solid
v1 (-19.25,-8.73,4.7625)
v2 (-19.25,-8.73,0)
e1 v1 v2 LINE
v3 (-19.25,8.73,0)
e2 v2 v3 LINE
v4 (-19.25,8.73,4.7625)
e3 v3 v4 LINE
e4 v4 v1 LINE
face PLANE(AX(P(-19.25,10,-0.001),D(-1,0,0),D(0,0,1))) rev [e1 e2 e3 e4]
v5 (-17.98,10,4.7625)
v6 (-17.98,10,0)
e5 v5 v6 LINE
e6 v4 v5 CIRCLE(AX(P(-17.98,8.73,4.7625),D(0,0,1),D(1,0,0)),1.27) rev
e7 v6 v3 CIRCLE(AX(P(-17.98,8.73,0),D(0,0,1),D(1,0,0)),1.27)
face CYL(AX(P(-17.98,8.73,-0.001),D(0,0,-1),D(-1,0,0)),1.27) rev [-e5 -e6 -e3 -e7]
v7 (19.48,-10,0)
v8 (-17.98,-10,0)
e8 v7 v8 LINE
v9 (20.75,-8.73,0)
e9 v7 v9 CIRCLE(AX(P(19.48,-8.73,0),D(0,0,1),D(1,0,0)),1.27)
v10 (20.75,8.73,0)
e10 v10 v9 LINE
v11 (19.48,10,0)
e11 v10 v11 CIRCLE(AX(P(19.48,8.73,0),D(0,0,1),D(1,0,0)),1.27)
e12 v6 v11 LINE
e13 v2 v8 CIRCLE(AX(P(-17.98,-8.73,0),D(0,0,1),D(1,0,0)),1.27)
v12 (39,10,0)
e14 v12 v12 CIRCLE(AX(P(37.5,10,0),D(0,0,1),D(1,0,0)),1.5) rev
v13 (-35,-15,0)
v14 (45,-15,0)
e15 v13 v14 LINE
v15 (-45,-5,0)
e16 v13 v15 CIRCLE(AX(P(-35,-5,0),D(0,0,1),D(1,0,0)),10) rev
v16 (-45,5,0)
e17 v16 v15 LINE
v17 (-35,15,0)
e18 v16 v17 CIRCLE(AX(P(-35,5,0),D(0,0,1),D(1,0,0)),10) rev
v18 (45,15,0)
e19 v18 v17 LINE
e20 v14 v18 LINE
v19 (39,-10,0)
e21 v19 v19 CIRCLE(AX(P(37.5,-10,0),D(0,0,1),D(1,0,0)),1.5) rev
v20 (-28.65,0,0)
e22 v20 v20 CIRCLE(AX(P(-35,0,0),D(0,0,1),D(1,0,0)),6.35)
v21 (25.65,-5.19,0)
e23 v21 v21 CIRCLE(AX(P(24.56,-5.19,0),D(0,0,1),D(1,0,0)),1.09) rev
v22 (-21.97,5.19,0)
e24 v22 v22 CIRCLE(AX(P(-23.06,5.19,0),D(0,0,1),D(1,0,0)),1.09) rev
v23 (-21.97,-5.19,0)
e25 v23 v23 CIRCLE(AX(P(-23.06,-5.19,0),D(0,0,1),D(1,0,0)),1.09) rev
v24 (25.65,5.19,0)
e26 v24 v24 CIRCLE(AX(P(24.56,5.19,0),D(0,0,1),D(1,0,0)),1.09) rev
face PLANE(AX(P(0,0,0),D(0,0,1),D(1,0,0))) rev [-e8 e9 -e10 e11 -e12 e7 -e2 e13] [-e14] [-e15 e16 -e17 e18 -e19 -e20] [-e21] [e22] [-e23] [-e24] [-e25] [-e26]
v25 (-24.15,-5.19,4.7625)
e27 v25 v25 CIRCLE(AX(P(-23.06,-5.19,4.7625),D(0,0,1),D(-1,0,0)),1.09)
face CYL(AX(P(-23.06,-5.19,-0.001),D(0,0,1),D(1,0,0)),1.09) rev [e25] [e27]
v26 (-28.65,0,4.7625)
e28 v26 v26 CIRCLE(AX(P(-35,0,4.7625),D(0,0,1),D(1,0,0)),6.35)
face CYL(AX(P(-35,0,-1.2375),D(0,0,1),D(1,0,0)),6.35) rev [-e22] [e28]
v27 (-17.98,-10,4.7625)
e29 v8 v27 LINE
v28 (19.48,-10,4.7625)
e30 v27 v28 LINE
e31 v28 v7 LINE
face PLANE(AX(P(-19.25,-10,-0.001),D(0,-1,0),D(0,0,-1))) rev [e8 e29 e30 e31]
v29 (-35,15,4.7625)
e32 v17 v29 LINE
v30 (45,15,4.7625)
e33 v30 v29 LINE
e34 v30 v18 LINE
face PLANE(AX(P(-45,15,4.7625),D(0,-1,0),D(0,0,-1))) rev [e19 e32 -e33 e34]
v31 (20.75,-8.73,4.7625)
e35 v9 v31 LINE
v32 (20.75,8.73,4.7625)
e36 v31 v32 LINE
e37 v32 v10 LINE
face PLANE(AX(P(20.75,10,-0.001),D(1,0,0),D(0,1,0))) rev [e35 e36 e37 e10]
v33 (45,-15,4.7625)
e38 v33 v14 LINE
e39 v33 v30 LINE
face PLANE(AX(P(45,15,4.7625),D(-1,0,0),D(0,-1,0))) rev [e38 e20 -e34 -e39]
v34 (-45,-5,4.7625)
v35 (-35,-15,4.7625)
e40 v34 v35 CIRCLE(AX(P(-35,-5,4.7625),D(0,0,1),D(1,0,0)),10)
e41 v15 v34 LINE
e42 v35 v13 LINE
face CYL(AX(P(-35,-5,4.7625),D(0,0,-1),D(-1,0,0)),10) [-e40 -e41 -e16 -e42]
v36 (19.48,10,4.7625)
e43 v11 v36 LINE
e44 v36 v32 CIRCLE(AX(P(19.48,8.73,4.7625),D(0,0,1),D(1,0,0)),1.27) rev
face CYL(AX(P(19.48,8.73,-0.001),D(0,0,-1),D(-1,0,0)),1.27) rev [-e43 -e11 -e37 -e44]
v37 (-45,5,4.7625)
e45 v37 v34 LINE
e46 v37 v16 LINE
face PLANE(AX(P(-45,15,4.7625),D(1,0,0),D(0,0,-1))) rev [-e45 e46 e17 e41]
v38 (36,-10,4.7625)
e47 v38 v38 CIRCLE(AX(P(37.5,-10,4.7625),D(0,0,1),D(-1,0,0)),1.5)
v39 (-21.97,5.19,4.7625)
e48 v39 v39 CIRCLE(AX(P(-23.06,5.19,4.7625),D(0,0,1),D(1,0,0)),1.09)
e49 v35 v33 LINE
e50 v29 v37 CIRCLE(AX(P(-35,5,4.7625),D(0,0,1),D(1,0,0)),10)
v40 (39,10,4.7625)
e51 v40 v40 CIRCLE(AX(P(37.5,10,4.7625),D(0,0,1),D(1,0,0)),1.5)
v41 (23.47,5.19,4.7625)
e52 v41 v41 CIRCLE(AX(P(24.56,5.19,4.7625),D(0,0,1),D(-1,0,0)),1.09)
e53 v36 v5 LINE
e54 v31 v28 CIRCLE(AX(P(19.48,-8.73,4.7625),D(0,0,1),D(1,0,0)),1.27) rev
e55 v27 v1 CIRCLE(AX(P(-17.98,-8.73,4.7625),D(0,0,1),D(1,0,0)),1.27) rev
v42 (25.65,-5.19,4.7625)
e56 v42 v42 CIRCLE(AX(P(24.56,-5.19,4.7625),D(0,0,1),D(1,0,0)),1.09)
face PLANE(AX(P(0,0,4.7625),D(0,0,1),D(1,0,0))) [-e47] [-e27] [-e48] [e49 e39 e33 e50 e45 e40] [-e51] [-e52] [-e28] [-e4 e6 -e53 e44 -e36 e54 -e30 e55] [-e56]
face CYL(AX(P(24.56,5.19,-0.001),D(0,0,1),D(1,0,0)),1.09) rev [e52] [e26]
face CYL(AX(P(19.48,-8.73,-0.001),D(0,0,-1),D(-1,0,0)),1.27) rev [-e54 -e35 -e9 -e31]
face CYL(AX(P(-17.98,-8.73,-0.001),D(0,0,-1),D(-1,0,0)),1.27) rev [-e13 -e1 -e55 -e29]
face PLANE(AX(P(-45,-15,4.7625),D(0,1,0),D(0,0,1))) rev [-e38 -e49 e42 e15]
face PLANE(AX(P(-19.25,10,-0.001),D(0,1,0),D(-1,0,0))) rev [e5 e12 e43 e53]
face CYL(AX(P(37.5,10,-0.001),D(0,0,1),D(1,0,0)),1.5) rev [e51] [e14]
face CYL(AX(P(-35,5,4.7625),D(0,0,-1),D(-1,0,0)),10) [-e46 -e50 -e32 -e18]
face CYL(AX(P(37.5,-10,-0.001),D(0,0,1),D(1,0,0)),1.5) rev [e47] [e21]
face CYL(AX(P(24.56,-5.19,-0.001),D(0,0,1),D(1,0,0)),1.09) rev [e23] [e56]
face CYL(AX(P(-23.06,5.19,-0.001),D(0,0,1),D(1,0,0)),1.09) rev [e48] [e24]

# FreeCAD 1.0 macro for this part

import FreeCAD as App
import Part
import Sketcher
from FreeCAD import Vector


def edges_at(feature, points):
    """Names of the edges that pass closest to the given points."""
    edges = feature.Shape.Edges
    near = lambda p: min(range(len(edges)), key=lambda i: edges[i].distToShape(Part.Vertex(*p))[0])
    return sorted({f"Edge{near(p) + 1}" for p in points})


def add_polygon(sketch, points):
    """Adds a closed chain of lines whose ends are joined by coincident constraints."""
    first, n = sketch.GeometryCount, len(points)
    for a, b in zip(points, points[1:] + points[:1]):
        sketch.addGeometry(Part.LineSegment(App.Vector(*a, 0), App.Vector(*b, 0)), False)
    for i in range(n):
        sketch.addConstraint(Sketcher.Constraint("Coincident", first + i, 2, first + (i + 1) % n, 1))

doc = App.newDocument("Part")
params = doc.addObject("Spreadsheet::Sheet", "Params")
for row, (alias, value) in enumerate([
    ("sketch1_width", "90 mm"),
    ("sketch1_height", "30 mm"),
    ("pad1_length", "4.7625 mm"),
    ("fillet_radius", "10 mm"),
    ("sketch2_diameter", "12.7 mm"),
    ("pocket1_length", "6 mm"),
    ("sketch3_width", "40 mm"),
    ("sketch3_height", "20 mm"),
    ("fillet2_radius", "1.27 mm"),
    ("sketch4_diameter", "2.18 mm"),
    ("sketch5_diameter", "2.18 mm"),
    ("sketch6_diameter", "2.18 mm"),
    ("sketch7_diameter", "2.18 mm"),
    ("sketch8_diameter", "3 mm"),
    ("sketch9_diameter", "3 mm"),
], start=1):
    params.set(f"A{row}", alias)
    params.set(f"B{row}", "=" + value)
    params.setAlias(f"B{row}", alias)

body = doc.addObject("PartDesign::Body", "Body")

# Sketch on XY plane
sketch1 = body.newObject("Sketcher::SketchObject", "Sketch")
sketch1.AttachmentSupport = (doc.getObject("XY_Plane"), [""])
sketch1.MapMode = "FlatFace"
add_polygon(sketch1, [(-45, 15), (-45, -15), (45, -15), (45, 15)])  # lines 0-3
sketch1.addConstraint([
    Sketcher.Constraint("Vertical", 0),
    Sketcher.Constraint("Horizontal", 1),
    Sketcher.Constraint("Vertical", 2),
    Sketcher.Constraint("Horizontal", 3),
    Sketcher.Constraint("Symmetric", 0, 2, 2, 2, -1, 1),
    Sketcher.Constraint("DistanceX", 1, 1, 1, 2, 90.0),
    Sketcher.Constraint("DistanceY", 0, 2, 0, 1, 30.0),
])
sketch1.setExpression("Constraints[9]", "Params.sketch1_width")
sketch1.setExpression("Constraints[10]", "Params.sketch1_height")
pad1 = body.newObject("PartDesign::Pad", "Pad")
pad1.Profile = sketch1
pad1.setExpression("Length", "Params.pad1_length")
doc.recompute()

fillet = body.newObject("PartDesign::Fillet", "Fillet")
fillet.Base = (pad1, edges_at(pad1, [(-45, -15, 2.381), (-45, 15, 2.381)]))
fillet.setExpression("Radius", "Params.fillet_radius")

# Sketch on XY plane
sketch2 = body.newObject("Sketcher::SketchObject", "Sketch001")
sketch2.AttachmentSupport = (doc.getObject("XY_Plane"), [""])
sketch2.MapMode = "FlatFace"
sketch2.AttachmentOffset = App.Placement(Vector(0, 0, 4.7625), App.Rotation())
sketch2.addGeometry(Part.Circle(Vector(-35, 0, 0), Vector(0, 0, 1), 6), False)
sketch2.addConstraint([
    Sketcher.Constraint("PointOnObject", 0, 3, -1),
    Sketcher.Constraint("Diameter", 0, 12.7),
    Sketcher.Constraint("DistanceX", 0, 3, -1, 1, 35.0),
])
sketch2.setExpression("Constraints[1]", "Params.sketch2_diameter")
pocket1 = body.newObject("PartDesign::Pocket", "Pocket")
pocket1.Profile = sketch2
pocket1.setExpression("Length", "Params.pocket1_length")

# Sketch on XY plane
sketch3 = body.newObject("Sketcher::SketchObject", "Sketch002")
sketch3.AttachmentSupport = (doc.getObject("XY_Plane"), [""])
sketch3.MapMode = "FlatFace"
sketch3.AttachmentOffset = App.Placement(Vector(0, 0, 4.7625), App.Rotation())
add_polygon(sketch3, [(-19, 10), (-19, -10), (21, -10), (21, 10)])  # lines 0-3
sketch3.addConstraint([
    Sketcher.Constraint("Vertical", 0),
    Sketcher.Constraint("Horizontal", 1),
    Sketcher.Constraint("Vertical", 2),
    Sketcher.Constraint("Horizontal", 3),
    Sketcher.Constraint("DistanceX", 1, 1, 1, 2, 40.0),
    Sketcher.Constraint("DistanceY", 0, 2, 0, 1, 20.0),
    Sketcher.Constraint("DistanceY", 0, 2, -1, 1, 10.0),
    Sketcher.Constraint("DistanceX", 0, 2, -1, 1, 19.25),
])
sketch3.setExpression("Constraints[8]", "Params.sketch3_width")
sketch3.setExpression("Constraints[9]", "Params.sketch3_height")
pocket2 = body.newObject("PartDesign::Pocket", "Pocket001")
pocket2.Profile = sketch3
pocket2.Type = "UpToFirst"
doc.recompute()

fillet2 = body.newObject("PartDesign::Fillet", "Fillet001")
fillet2.Base = (pocket2, edges_at(pocket2, [
    (-19.25, -10, 2.381),
    (-19.25, 10, 2.381),
    (20.75, 10, 2.381),
    (20.75, -10, 2.381),
]))
fillet2.setExpression("Radius", "Params.fillet2_radius")

# Sketch on XY plane
sketch4 = body.newObject("Sketcher::SketchObject", "Sketch003")
sketch4.AttachmentSupport = (doc.getObject("XY_Plane"), [""])
sketch4.MapMode = "FlatFace"
sketch4.AttachmentOffset = App.Placement(Vector(0, 0, 4.7625), App.Rotation())
sketch4.addGeometry(Part.Circle(Vector(-23.1, 5.2, 0), Vector(0, 0, 1), 1.1), False)
sketch4.addConstraint([
    Sketcher.Constraint("Diameter", 0, 2.18),
    Sketcher.Constraint("DistanceX", 0, 3, -1, 1, 23.06),
    Sketcher.Constraint("DistanceY", -1, 1, 0, 3, 5.19),
])
sketch4.setExpression("Constraints[0]", "Params.sketch4_diameter")
pocket3 = body.newObject("PartDesign::Pocket", "Pocket002")
pocket3.Profile = sketch4
pocket3.Type = "UpToFirst"

# Sketch on XY plane
sketch5 = body.newObject("Sketcher::SketchObject", "Sketch004")
sketch5.AttachmentSupport = (doc.getObject("XY_Plane"), [""])
sketch5.MapMode = "FlatFace"
sketch5.AttachmentOffset = App.Placement(Vector(0, 0, 4.7625), App.Rotation())
sketch5.addGeometry(Part.Circle(Vector(-23.1, -5.2, 0), Vector(0, 0, 1), 1.1), False)
sketch5.addConstraint([
    Sketcher.Constraint("Diameter", 0, 2.18),
    Sketcher.Constraint("DistanceX", 0, 3, -1, 1, 23.06),
    Sketcher.Constraint("DistanceY", 0, 3, -1, 1, 5.19),
])
sketch5.setExpression("Constraints[0]", "Params.sketch5_diameter")
pocket4 = body.newObject("PartDesign::Pocket", "Pocket003")
pocket4.Profile = sketch5
pocket4.Type = "UpToFirst"

# Sketch on XY plane
sketch6 = body.newObject("Sketcher::SketchObject", "Sketch005")
sketch6.AttachmentSupport = (doc.getObject("XY_Plane"), [""])
sketch6.MapMode = "FlatFace"
sketch6.AttachmentOffset = App.Placement(Vector(0, 0, 4.7625), App.Rotation())
sketch6.addGeometry(Part.Circle(Vector(24.6, -5.2, 0), Vector(0, 0, 1), 1.1), False)
sketch6.addConstraint([
    Sketcher.Constraint("Diameter", 0, 2.18),
    Sketcher.Constraint("DistanceX", -1, 1, 0, 3, 24.56),
    Sketcher.Constraint("DistanceY", 0, 3, -1, 1, 5.19),
])
sketch6.setExpression("Constraints[0]", "Params.sketch6_diameter")
pocket5 = body.newObject("PartDesign::Pocket", "Pocket004")
pocket5.Profile = sketch6
pocket5.Type = "UpToFirst"

# Sketch on XY plane
sketch7 = body.newObject("Sketcher::SketchObject", "Sketch006")
sketch7.AttachmentSupport = (doc.getObject("XY_Plane"), [""])
sketch7.MapMode = "FlatFace"
sketch7.AttachmentOffset = App.Placement(Vector(0, 0, 4.7625), App.Rotation())
sketch7.addGeometry(Part.Circle(Vector(24.6, 5.2, 0), Vector(0, 0, 1), 1.1), False)
sketch7.addConstraint([
    Sketcher.Constraint("Diameter", 0, 2.18),
    Sketcher.Constraint("DistanceX", -1, 1, 0, 3, 24.56),
    Sketcher.Constraint("DistanceY", -1, 1, 0, 3, 5.19),
])
sketch7.setExpression("Constraints[0]", "Params.sketch7_diameter")
pocket6 = body.newObject("PartDesign::Pocket", "Pocket005")
pocket6.Profile = sketch7
pocket6.Type = "UpToFirst"

# Sketch on XY plane
sketch8 = body.newObject("Sketcher::SketchObject", "Sketch007")
sketch8.AttachmentSupport = (doc.getObject("XY_Plane"), [""])
sketch8.MapMode = "FlatFace"
sketch8.AttachmentOffset = App.Placement(Vector(0, 0, 4.7625), App.Rotation())
sketch8.addGeometry(Part.Circle(Vector(37.5, 10, 0), Vector(0, 0, 1), 1.5), False)
sketch8.addConstraint([
    Sketcher.Constraint("Diameter", 0, 3.0),
    Sketcher.Constraint("DistanceY", -1, 1, 0, 3, 10.0),
    Sketcher.Constraint("DistanceX", -1, 1, 0, 3, 37.5),
])
sketch8.setExpression("Constraints[0]", "Params.sketch8_diameter")
pocket7 = body.newObject("PartDesign::Pocket", "Pocket006")
pocket7.Profile = sketch8
pocket7.Type = "UpToFirst"

# Sketch on XY plane
sketch9 = body.newObject("Sketcher::SketchObject", "Sketch008")
sketch9.AttachmentSupport = (doc.getObject("XY_Plane"), [""])
sketch9.MapMode = "FlatFace"
sketch9.AttachmentOffset = App.Placement(Vector(0, 0, 4.7625), App.Rotation())
sketch9.addGeometry(Part.Circle(Vector(37.5, -10, 0), Vector(0, 0, 1), 1.5), False)
sketch9.addConstraint([
    Sketcher.Constraint("Diameter", 0, 3.0),
    Sketcher.Constraint("DistanceY", 0, 3, -1, 1, 10.0),
    Sketcher.Constraint("DistanceX", -1, 1, 0, 3, 37.5),
])
sketch9.setExpression("Constraints[0]", "Params.sketch9_diameter")
pocket8 = body.newObject("PartDesign::Pocket", "Pocket007")
pocket8.Profile = sketch9
pocket8.Type = "UpToFirst"

doc.recompute()
